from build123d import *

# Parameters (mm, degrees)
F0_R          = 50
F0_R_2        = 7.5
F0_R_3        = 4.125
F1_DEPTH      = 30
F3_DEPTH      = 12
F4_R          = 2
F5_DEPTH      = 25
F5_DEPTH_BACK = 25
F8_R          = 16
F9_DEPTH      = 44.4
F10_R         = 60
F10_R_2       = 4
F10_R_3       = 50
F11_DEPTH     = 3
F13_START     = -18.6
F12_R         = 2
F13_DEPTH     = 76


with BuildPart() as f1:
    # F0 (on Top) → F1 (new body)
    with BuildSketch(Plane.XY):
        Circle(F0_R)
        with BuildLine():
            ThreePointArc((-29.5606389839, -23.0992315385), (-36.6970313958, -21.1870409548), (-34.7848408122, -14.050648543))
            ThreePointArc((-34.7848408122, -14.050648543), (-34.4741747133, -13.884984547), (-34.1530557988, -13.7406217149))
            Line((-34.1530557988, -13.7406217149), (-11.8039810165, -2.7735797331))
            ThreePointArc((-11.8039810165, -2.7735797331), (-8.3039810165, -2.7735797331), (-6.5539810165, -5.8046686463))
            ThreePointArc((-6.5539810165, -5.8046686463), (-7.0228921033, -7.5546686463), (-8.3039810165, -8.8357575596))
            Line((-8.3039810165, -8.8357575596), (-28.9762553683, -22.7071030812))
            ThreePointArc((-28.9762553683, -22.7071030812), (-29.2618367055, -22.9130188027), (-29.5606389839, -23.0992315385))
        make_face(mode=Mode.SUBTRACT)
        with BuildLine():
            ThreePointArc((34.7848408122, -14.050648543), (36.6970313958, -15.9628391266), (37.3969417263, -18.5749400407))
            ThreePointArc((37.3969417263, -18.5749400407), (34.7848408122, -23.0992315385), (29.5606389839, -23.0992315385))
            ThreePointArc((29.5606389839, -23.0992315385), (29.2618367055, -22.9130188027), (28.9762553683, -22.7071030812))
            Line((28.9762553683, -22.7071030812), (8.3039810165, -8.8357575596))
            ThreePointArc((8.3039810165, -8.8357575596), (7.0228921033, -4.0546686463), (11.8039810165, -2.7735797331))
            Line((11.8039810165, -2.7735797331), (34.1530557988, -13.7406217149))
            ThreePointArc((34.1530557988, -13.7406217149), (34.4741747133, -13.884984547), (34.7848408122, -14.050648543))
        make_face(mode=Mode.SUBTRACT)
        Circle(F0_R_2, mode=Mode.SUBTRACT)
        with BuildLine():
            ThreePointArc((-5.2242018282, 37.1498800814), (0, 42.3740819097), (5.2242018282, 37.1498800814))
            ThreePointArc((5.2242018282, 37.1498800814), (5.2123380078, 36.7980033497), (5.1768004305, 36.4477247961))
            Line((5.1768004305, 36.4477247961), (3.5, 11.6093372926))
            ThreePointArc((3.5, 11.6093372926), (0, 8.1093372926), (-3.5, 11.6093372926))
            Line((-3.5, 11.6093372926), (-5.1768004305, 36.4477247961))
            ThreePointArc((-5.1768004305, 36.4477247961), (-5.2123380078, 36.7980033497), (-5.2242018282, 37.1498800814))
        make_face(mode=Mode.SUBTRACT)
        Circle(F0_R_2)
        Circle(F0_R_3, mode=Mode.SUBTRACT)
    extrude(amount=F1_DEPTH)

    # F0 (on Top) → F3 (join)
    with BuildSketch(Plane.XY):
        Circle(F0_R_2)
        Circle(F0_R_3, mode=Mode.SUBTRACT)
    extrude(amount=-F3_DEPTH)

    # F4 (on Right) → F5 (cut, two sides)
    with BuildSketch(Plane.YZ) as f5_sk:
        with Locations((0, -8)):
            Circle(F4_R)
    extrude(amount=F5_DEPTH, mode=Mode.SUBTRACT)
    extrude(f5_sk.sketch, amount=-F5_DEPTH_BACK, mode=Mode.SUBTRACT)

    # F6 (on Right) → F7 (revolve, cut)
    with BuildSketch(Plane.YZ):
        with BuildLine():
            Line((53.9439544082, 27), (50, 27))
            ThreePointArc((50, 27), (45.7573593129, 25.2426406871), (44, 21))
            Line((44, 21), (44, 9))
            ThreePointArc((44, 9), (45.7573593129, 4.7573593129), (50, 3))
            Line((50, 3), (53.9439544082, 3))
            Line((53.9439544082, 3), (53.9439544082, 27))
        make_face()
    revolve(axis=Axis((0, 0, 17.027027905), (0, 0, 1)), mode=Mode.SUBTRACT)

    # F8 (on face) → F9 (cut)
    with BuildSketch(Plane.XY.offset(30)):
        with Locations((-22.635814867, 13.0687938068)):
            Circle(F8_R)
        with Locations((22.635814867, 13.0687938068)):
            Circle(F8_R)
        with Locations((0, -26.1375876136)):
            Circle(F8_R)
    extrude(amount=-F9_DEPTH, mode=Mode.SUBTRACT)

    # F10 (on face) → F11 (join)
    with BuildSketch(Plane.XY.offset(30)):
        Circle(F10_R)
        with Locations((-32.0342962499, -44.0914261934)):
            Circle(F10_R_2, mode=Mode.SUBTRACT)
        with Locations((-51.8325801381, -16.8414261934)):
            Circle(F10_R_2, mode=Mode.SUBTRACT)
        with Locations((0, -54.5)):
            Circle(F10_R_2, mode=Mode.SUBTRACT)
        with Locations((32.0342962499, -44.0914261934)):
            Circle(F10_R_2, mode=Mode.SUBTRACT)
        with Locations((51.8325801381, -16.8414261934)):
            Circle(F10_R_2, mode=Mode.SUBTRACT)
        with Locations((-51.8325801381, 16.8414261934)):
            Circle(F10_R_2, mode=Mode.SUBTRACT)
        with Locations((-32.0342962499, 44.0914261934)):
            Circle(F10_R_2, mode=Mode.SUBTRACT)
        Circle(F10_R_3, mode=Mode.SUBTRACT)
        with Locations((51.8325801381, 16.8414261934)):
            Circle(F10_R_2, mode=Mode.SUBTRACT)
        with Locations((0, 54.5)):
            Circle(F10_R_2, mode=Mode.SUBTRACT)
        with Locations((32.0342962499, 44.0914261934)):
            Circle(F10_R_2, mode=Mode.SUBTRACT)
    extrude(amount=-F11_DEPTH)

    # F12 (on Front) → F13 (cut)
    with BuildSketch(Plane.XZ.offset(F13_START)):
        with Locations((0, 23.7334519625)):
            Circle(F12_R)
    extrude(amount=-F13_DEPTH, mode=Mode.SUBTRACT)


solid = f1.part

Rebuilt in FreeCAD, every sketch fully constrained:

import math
import FreeCAD as App
import Part
import Sketcher
from FreeCAD import Vector

doc = App.newDocument("Part")
body = doc.addObject("PartDesign::Body", "Body")

# Sketch on XY plane
sketch1 = doc.addObject("Sketcher::SketchObject", "Sketch")
body.addObject(sketch1)
sketch1.AttachmentSupport = (doc.XY_Plane, [""])
sketch1.MapMode = "FlatFace"
sketch1.addGeometry([
    Part.Circle(Vector(0, 0, 0), Vector(0, 0, 1), 50),  # 0
    Part.ArcOfCircle(Part.Circle(Vector(-32.17274, -18.57494, 0), Vector(0, 0, 1), 5.224202), math.radians(-60), math.radians(-52.275824)),  # 1
    Part.ArcOfCircle(Part.Circle(Vector(-32.17274, -18.57494, 0), Vector(0, 0, 1), 5.224202), math.radians(120), math.radians(300)),  # 2
    Part.ArcOfCircle(Part.Circle(Vector(-32.17274, -18.57494, 0), Vector(0, 0, 1), 5.224202), math.radians(112.275824), math.radians(120)),  # 3
    Part.LineSegment(Vector(-34.153056, -13.740622, 0), Vector(-11.803981, -2.77358, 0)),  # 4
    Part.ArcOfCircle(Part.Circle(Vector(-10.053981, -5.804669, 0), Vector(0, 0, 1), 3.5), math.radians(0), math.radians(120)),  # 5
    Part.ArcOfCircle(Part.Circle(Vector(-10.053981, -5.804669, 0), Vector(0, 0, 1), 3.5), math.radians(-60), math.radians(0)),  # 6
    Part.LineSegment(Vector(-8.303981, -8.835758, 0), Vector(-28.976255, -22.707103, 0)),  # 7
    Part.Circle(Vector(0, 0, 0), Vector(0, 0, 1), 4.125),  # 8
    Part.ArcOfCircle(Part.Circle(Vector(32.17274, -18.57494, 0), Vector(0, 0, 1), 5.224202), math.radians(60), math.radians(67.724176)),  # 9
    Part.ArcOfCircle(Part.Circle(Vector(32.17274, -18.57494, 0), Vector(0, 0, 1), 5.224202), math.radians(0), math.radians(60)),  # 10
    Part.ArcOfCircle(Part.Circle(Vector(32.17274, -18.57494, 0), Vector(0, 0, 1), 5.224202), math.radians(-120), math.radians(0)),  # 11
    Part.ArcOfCircle(Part.Circle(Vector(32.17274, -18.57494, 0), Vector(0, 0, 1), 5.224202), math.radians(-127.724176), math.radians(-120)),  # 12
    Part.LineSegment(Vector(28.976255, -22.707103, 0), Vector(8.303981, -8.835758, 0)),  # 13
    Part.ArcOfCircle(Part.Circle(Vector(10.053981, -5.804669, 0), Vector(0, 0, 1), 3.5), math.radians(60), math.radians(240)),  # 14
    Part.LineSegment(Vector(11.803981, -2.77358, 0), Vector(34.153056, -13.740622, 0)),  # 15
    Part.ArcOfCircle(Part.Circle(Vector(0, 37.14988, 0), Vector(0, 0, 1), 5.224202), math.radians(180), math.radians(187.724176)),  # 16
    Part.ArcOfCircle(Part.Circle(Vector(0, 37.14988, 0), Vector(0, 0, 1), 5.224202), math.radians(0), math.radians(180)),  # 17
    Part.ArcOfCircle(Part.Circle(Vector(0, 37.14988, 0), Vector(0, 0, 1), 5.224202), math.radians(-7.724176), math.radians(0)),  # 18
    Part.LineSegment(Vector(5.1768, 36.447725, 0), Vector(3.5, 11.609337, 0)),  # 19
    Part.ArcOfCircle(Part.Circle(Vector(0, 11.609337, 0), Vector(0, 0, 1), 3.5), math.radians(180), math.radians(360)),  # 20
    Part.LineSegment(Vector(-3.5, 11.609337, 0), Vector(-5.1768, 36.447725, 0)),  # 21
], False)
sketch1.addConstraint([
    Sketcher.Constraint("Tangent", 1, 1, 2, 2),
    Sketcher.Constraint("Tangent", 2, 1, 3, 2),
    Sketcher.Constraint("Coincident", 3, 1, 4, 1),
    Sketcher.Constraint("Coincident", 4, 2, 5, 2),
    Sketcher.Constraint("Tangent", 5, 1, 6, 2),
    Sketcher.Constraint("Coincident", 6, 1, 7, 1),
    Sketcher.Constraint("Coincident", 7, 2, 1, 2),
    Sketcher.Constraint("Tangent", 9, 1, 10, 2),
    Sketcher.Constraint("Tangent", 10, 1, 11, 2),
    Sketcher.Constraint("Tangent", 11, 1, 12, 2),
    Sketcher.Constraint("Coincident", 12, 1, 13, 1),
    Sketcher.Constraint("Coincident", 13, 2, 14, 2),
    Sketcher.Constraint("Coincident", 14, 1, 15, 1),
    Sketcher.Constraint("Coincident", 15, 2, 9, 2),
    Sketcher.Constraint("Tangent", 16, 1, 17, 2),
    Sketcher.Constraint("Tangent", 17, 1, 18, 2),
    Sketcher.Constraint("Coincident", 18, 1, 19, 1),
    Sketcher.Constraint("Coincident", 19, 2, 20, 2),
    Sketcher.Constraint("Coincident", 20, 1, 21, 1),
    Sketcher.Constraint("Coincident", 21, 2, 16, 2),
    Sketcher.Constraint("Coincident", 0, 3, -1, 1),
    Sketcher.Constraint("Coincident", 8, 3, -1, 1),
    Sketcher.Constraint("Coincident", 11, 3, 9, 3),
    Sketcher.Constraint("Equal", 1, 2),
    Sketcher.Constraint("Equal", 2, 3),
    Sketcher.Constraint("Equal", 5, 6),
    Sketcher.Constraint("Equal", 3, 9),
    Sketcher.Constraint("Equal", 11, 12),
    Sketcher.Constraint("Equal", 6, 14),
    Sketcher.Constraint("Equal", 12, 16),
    Sketcher.Constraint("Equal", 16, 17),
    Sketcher.Constraint("Equal", 17, 18),
    Sketcher.Constraint("Equal", 14, 20),
    Sketcher.Constraint("Symmetric", 1, 3, 9, 3, -2),
    Sketcher.Constraint("Symmetric", 5, 3, 14, 3, -2),
    Sketcher.Constraint("Symmetric", 16, 1, 17, 1, -2),
    Sketcher.Constraint("Symmetric", 19, 2, 20, 1, -2),
    Sketcher.Constraint("Horizontal", 14, 3, 5, 1),
    Sketcher.Constraint("Horizontal", 2, 1, 9, 1),
    Sketcher.Constraint("Horizontal", 12, 3, 10, 1),
    Sketcher.Constraint("Horizontal", 1, 1, 11, 1),
    Sketcher.Constraint("Horizontal", 7, 2, 12, 1),
    Sketcher.Constraint("Horizontal", 6, 1, 13, 2),
    Sketcher.Constraint("Horizontal", 4, 2, 14, 1),
    Sketcher.Constraint("Horizontal", 3, 1, 15, 2),
    Sketcher.Constraint("Horizontal", 18, 3, 16, 1),
    Sketcher.Constraint("Horizontal", 20, 3, 19, 2),
    Sketcher.Constraint("Horizontal", 18, 1, 21, 2),
    Sketcher.Constraint("Equal", 4, 7),
    Sketcher.Constraint("Equal", 15, 19),
    Sketcher.Constraint("Diameter", 0, 100.0),
    Sketcher.Constraint("Radius", 5, 3.5),
    Sketcher.Constraint("Diameter", 8, 8.25),
    Sketcher.Constraint("Radius", 1, 5.224202),
    Sketcher.Constraint("DistanceX", 4, 2, 6, 1, 3.5),
    Sketcher.Constraint("DistanceX", 4, 2, 6, 3, 1.75),
    Sketcher.Constraint("DistanceX", -1, 1, 18, 1, 5.1768),
    Sketcher.Constraint("DistanceX", 3, 3, 1, 1, 2.612101),
    Sketcher.Constraint("DistanceX", 2, 1, 1, 3, 2.612101),
    Sketcher.Constraint("DistanceX", 3, 1, 7, 2, 5.1768),
    Sketcher.Constraint("DistanceX", 1, 3, -1, 1, 32.17274),
    Sketcher.Constraint("DistanceY", 1, 3, -1, 1, 18.57494),
    Sketcher.Constraint("DistanceX", 5, 3, -1, 1, 10.053981),
    Sketcher.Constraint("DistanceY", 5, 3, -1, 1, 5.804669),
    Sketcher.Constraint("DistanceY", -1, 1, 16, 3, 37.14988),
])
pad1 = doc.addObject("PartDesign::Pad", "Pad")
body.addObject(pad1)
pad1.Profile = sketch1
pad1.Length = 30

# Sketch on XY plane
sketch2 = doc.addObject("Sketcher::SketchObject", "Sketch001")
body.addObject(sketch2)
sketch2.AttachmentSupport = (doc.XY_Plane, [""])
sketch2.MapMode = "FlatFace"
sketch2.addGeometry([
    Part.Circle(Vector(0, 0, 0), Vector(0, 0, 1), 7.5),
    Part.Circle(Vector(0, 0, 0), Vector(0, 0, 1), 4.125),
], False)
sketch2.addConstraint([
    Sketcher.Constraint("Coincident", 0, 3, -1, 1),
    Sketcher.Constraint("Coincident", 1, 3, -1, 1),
    Sketcher.Constraint("Diameter", 0, 15.0),
    Sketcher.Constraint("Diameter", 1, 8.25),
])
pad2 = doc.addObject("PartDesign::Pad", "Pad001")
body.addObject(pad2)
pad2.Profile = sketch2
pad2.Length = 12
pad2.Reversed = True

# Sketch on YZ plane
sketch3 = doc.addObject("Sketcher::SketchObject", "Sketch002")
body.addObject(sketch3)
sketch3.AttachmentSupport = (doc.YZ_Plane, [""])
sketch3.MapMode = "FlatFace"
sketch3.addGeometry(Part.Circle(Vector(0, -8, 0), Vector(0, 0, 1), 2), False)
sketch3.addConstraint([
    Sketcher.Constraint("PointOnObject", 0, 3, -2),
    Sketcher.Constraint("Diameter", 0, 4.0),
    Sketcher.Constraint("DistanceY", 0, 3, -1, 1, 8.0),
])
pocket1 = doc.addObject("PartDesign::Pocket", "Pocket")
body.addObject(pocket1)
pocket1.Profile = sketch3
pocket1.Type = "ThroughAll"
pocket1.Midplane = True

# Sketch on YZ plane
sketch4 = doc.addObject("Sketcher::SketchObject", "Sketch003")
body.addObject(sketch4)
sketch4.AttachmentSupport = (doc.YZ_Plane, [""])
sketch4.MapMode = "FlatFace"
sketch4.addGeometry([
    Part.LineSegment(Vector(53.943954, 27, 0), Vector(50, 27, 0)),  # 0
    Part.ArcOfCircle(Part.Circle(Vector(50, 21, 0), Vector(0, 0, 1), 6), math.radians(90), math.radians(180)),  # 1
    Part.LineSegment(Vector(44, 21, 0), Vector(44, 9, 0)),  # 2
    Part.ArcOfCircle(Part.Circle(Vector(50, 9, 0), Vector(0, 0, 1), 6), math.radians(180), math.radians(270)),  # 3
    Part.LineSegment(Vector(50, 3, 0), Vector(53.943954, 3, 0)),  # 4
    Part.LineSegment(Vector(53.943954, 3, 0), Vector(53.943954, 27, 0)),  # 5
], False)
sketch4.addConstraint([
    Sketcher.Constraint("Tangent", 0, 2, 1, 1),
    Sketcher.Constraint("Tangent", 1, 2, 2, 1),
    Sketcher.Constraint("Tangent", 2, 2, 3, 1),
    Sketcher.Constraint("Tangent", 3, 2, 4, 1),
    Sketcher.Constraint("Coincident", 4, 2, 5, 1),
    Sketcher.Constraint("Coincident", 5, 2, 0, 1),
    Sketcher.Constraint("Horizontal", 0),
    Sketcher.Constraint("Vertical", 2),
    Sketcher.Constraint("Horizontal", 4),
    Sketcher.Constraint("Vertical", 5),
    Sketcher.Constraint("Equal", 1, 3),
    Sketcher.Constraint("Radius", 1, 6.0),
    Sketcher.Constraint("DistanceY", 2, 2, 2, 1, 12.0),
    Sketcher.Constraint("DistanceX", -1, 1, 1, 3, 50.0),
    Sketcher.Constraint("DistanceY", -1, 1, 1, 3, 21.0),
    Sketcher.Constraint("DistanceX", 0, 2, 0, 1, 3.943954),
])
groove = doc.addObject("PartDesign::Groove", "Groove")
body.addObject(groove)
groove.Profile = sketch4
groove.ReferenceAxis = (sketch4, ["V_Axis"])
groove.Angle = 360

# Sketch on XY plane
sketch5 = doc.addObject("Sketcher::SketchObject", "Sketch004")
body.addObject(sketch5)
sketch5.AttachmentSupport = (doc.XY_Plane, [""])
sketch5.MapMode = "FlatFace"
sketch5.AttachmentOffset = App.Placement(Vector(0, 0, 30), App.Rotation())
sketch5.addGeometry([
    Part.Circle(Vector(-22.635815, 13.068794, 0), Vector(0, 0, 1), 16),
    Part.Circle(Vector(22.635815, 13.068794, 0), Vector(0, 0, 1), 16),
    Part.Circle(Vector(0, -26.137588, 0), Vector(0, 0, 1), 16),
], False)
sketch5.addConstraint([
    Sketcher.Constraint("Equal", 0, 1),
    Sketcher.Constraint("Equal", 1, 2),
    Sketcher.Constraint("Symmetric", 0, 3, 1, 3, -2),
    Sketcher.Constraint("PointOnObject", 2, 3, -2),
    Sketcher.Constraint("Diameter", 0, 32.0),
    Sketcher.Constraint("DistanceX", 0, 3, 1, 3, 45.27163),
    Sketcher.Constraint("DistanceY", 2, 3, 0, 3, 39.206381),
    Sketcher.Constraint("DistanceY", -1, 1, 0, 3, 13.068794),
])
pocket2 = doc.addObject("PartDesign::Pocket", "Pocket001")
body.addObject(pocket2)
pocket2.Profile = sketch5
pocket2.Length = 44.4

# Sketch on XY plane
sketch6 = doc.addObject("Sketcher::SketchObject", "Sketch005")
body.addObject(sketch6)
sketch6.AttachmentSupport = (doc.XY_Plane, [""])
sketch6.MapMode = "FlatFace"
sketch6.AttachmentOffset = App.Placement(Vector(0, 0, 30), App.Rotation())
sketch6.addGeometry([
    Part.Circle(Vector(0, 0, 0), Vector(0, 0, 1), 60),  # 0
    Part.Circle(Vector(-32.034296, -44.091426, 0), Vector(0, 0, 1), 4),  # 1
    Part.Circle(Vector(-51.83258, -16.841426, 0), Vector(0, 0, 1), 4),  # 2
    Part.Circle(Vector(0, -54.5, 0), Vector(0, 0, 1), 4),  # 3
    Part.Circle(Vector(32.034296, -44.091426, 0), Vector(0, 0, 1), 4),  # 4
    Part.Circle(Vector(51.83258, -16.841426, 0), Vector(0, 0, 1), 4),  # 5
    Part.Circle(Vector(-51.83258, 16.841426, 0), Vector(0, 0, 1), 4),  # 6
    Part.Circle(Vector(-32.034296, 44.091426, 0), Vector(0, 0, 1), 4),  # 7
    Part.Circle(Vector(0, 0, 0), Vector(0, 0, 1), 50),  # 8
    Part.Circle(Vector(51.83258, 16.841426, 0), Vector(0, 0, 1), 4),  # 9
    Part.Circle(Vector(0, 54.5, 0), Vector(0, 0, 1), 4),  # 10
    Part.Circle(Vector(32.034296, 44.091426, 0), Vector(0, 0, 1), 4),  # 11
], False)
sketch6.addConstraint([
    Sketcher.Constraint("Coincident", 0, 3, -1, 1),
    Sketcher.Constraint("Coincident", 8, 3, -1, 1),
    Sketcher.Constraint("Equal", 1, 2),
    Sketcher.Constraint("Equal", 2, 3),
    Sketcher.Constraint("Equal", 3, 4),
    Sketcher.Constraint("Equal", 4, 5),
    Sketcher.Constraint("Equal", 5, 6),
    Sketcher.Constraint("Equal", 6, 7),
    Sketcher.Constraint("Equal", 7, 9),
    Sketcher.Constraint("Equal", 9, 10),
    Sketcher.Constraint("Equal", 10, 11),
    Sketcher.Constraint("Symmetric", 5, 3, 6, 3, -1, 1),
    Sketcher.Constraint("Symmetric", 4, 3, 7, 3, -1, 1),
    Sketcher.Constraint("Symmetric", 2, 3, 9, 3, -1, 1),
    Sketcher.Constraint("Symmetric", 3, 3, 10, 3, -1, 1),
    Sketcher.Constraint("Symmetric", 1, 3, 11, 3, -1, 1),
    Sketcher.Constraint("Symmetric", 1, 3, 4, 3, -2),
    Sketcher.Constraint("Symmetric", 2, 3, 5, 3, -2),
    Sketcher.Constraint("PointOnObject", 3, 3, -2),
    Sketcher.Constraint("Diameter", 0, 120.0),
    Sketcher.Constraint("Diameter", 1, 8.0),
    Sketcher.Constraint("Diameter", 8, 100.0),
    Sketcher.Constraint("DistanceY", 3, 3, -1, 1, 54.5),
    Sketcher.Constraint("DistanceY", 1, 3, 2, 3, 27.25),
    Sketcher.Constraint("DistanceX", 2, 3, -1, 1, 51.83258),
    Sketcher.Constraint("DistanceX", 1, 3, -1, 1, 32.034296),
    Sketcher.Constraint("DistanceY", 1, 3, -1, 1, 44.091426),
])
pad3 = doc.addObject("PartDesign::Pad", "Pad002")
body.addObject(pad3)
pad3.Profile = sketch6
pad3.Length = 3
pad3.Reversed = True

# Sketch on XZ plane
sketch7 = doc.addObject("Sketcher::SketchObject", "Sketch006")
body.addObject(sketch7)
sketch7.AttachmentSupport = (doc.XZ_Plane, [""])
sketch7.MapMode = "FlatFace"
sketch7.AttachmentOffset = App.Placement(Vector(0, 0, -18.6), App.Rotation())
sketch7.addGeometry(Part.Circle(Vector(0, 23.733452, 0), Vector(0, 0, 1), 2), False)
sketch7.addConstraint([
    Sketcher.Constraint("PointOnObject", 0, 3, -2),
    Sketcher.Constraint("Diameter", 0, 4.0),
    Sketcher.Constraint("DistanceY", -1, 1, 0, 3, 23.733452),
])
pocket3 = doc.addObject("PartDesign::Pocket", "Pocket002")
body.addObject(pocket3)
pocket3.Profile = sketch7
pocket3.Length = 76

doc.recompute()
